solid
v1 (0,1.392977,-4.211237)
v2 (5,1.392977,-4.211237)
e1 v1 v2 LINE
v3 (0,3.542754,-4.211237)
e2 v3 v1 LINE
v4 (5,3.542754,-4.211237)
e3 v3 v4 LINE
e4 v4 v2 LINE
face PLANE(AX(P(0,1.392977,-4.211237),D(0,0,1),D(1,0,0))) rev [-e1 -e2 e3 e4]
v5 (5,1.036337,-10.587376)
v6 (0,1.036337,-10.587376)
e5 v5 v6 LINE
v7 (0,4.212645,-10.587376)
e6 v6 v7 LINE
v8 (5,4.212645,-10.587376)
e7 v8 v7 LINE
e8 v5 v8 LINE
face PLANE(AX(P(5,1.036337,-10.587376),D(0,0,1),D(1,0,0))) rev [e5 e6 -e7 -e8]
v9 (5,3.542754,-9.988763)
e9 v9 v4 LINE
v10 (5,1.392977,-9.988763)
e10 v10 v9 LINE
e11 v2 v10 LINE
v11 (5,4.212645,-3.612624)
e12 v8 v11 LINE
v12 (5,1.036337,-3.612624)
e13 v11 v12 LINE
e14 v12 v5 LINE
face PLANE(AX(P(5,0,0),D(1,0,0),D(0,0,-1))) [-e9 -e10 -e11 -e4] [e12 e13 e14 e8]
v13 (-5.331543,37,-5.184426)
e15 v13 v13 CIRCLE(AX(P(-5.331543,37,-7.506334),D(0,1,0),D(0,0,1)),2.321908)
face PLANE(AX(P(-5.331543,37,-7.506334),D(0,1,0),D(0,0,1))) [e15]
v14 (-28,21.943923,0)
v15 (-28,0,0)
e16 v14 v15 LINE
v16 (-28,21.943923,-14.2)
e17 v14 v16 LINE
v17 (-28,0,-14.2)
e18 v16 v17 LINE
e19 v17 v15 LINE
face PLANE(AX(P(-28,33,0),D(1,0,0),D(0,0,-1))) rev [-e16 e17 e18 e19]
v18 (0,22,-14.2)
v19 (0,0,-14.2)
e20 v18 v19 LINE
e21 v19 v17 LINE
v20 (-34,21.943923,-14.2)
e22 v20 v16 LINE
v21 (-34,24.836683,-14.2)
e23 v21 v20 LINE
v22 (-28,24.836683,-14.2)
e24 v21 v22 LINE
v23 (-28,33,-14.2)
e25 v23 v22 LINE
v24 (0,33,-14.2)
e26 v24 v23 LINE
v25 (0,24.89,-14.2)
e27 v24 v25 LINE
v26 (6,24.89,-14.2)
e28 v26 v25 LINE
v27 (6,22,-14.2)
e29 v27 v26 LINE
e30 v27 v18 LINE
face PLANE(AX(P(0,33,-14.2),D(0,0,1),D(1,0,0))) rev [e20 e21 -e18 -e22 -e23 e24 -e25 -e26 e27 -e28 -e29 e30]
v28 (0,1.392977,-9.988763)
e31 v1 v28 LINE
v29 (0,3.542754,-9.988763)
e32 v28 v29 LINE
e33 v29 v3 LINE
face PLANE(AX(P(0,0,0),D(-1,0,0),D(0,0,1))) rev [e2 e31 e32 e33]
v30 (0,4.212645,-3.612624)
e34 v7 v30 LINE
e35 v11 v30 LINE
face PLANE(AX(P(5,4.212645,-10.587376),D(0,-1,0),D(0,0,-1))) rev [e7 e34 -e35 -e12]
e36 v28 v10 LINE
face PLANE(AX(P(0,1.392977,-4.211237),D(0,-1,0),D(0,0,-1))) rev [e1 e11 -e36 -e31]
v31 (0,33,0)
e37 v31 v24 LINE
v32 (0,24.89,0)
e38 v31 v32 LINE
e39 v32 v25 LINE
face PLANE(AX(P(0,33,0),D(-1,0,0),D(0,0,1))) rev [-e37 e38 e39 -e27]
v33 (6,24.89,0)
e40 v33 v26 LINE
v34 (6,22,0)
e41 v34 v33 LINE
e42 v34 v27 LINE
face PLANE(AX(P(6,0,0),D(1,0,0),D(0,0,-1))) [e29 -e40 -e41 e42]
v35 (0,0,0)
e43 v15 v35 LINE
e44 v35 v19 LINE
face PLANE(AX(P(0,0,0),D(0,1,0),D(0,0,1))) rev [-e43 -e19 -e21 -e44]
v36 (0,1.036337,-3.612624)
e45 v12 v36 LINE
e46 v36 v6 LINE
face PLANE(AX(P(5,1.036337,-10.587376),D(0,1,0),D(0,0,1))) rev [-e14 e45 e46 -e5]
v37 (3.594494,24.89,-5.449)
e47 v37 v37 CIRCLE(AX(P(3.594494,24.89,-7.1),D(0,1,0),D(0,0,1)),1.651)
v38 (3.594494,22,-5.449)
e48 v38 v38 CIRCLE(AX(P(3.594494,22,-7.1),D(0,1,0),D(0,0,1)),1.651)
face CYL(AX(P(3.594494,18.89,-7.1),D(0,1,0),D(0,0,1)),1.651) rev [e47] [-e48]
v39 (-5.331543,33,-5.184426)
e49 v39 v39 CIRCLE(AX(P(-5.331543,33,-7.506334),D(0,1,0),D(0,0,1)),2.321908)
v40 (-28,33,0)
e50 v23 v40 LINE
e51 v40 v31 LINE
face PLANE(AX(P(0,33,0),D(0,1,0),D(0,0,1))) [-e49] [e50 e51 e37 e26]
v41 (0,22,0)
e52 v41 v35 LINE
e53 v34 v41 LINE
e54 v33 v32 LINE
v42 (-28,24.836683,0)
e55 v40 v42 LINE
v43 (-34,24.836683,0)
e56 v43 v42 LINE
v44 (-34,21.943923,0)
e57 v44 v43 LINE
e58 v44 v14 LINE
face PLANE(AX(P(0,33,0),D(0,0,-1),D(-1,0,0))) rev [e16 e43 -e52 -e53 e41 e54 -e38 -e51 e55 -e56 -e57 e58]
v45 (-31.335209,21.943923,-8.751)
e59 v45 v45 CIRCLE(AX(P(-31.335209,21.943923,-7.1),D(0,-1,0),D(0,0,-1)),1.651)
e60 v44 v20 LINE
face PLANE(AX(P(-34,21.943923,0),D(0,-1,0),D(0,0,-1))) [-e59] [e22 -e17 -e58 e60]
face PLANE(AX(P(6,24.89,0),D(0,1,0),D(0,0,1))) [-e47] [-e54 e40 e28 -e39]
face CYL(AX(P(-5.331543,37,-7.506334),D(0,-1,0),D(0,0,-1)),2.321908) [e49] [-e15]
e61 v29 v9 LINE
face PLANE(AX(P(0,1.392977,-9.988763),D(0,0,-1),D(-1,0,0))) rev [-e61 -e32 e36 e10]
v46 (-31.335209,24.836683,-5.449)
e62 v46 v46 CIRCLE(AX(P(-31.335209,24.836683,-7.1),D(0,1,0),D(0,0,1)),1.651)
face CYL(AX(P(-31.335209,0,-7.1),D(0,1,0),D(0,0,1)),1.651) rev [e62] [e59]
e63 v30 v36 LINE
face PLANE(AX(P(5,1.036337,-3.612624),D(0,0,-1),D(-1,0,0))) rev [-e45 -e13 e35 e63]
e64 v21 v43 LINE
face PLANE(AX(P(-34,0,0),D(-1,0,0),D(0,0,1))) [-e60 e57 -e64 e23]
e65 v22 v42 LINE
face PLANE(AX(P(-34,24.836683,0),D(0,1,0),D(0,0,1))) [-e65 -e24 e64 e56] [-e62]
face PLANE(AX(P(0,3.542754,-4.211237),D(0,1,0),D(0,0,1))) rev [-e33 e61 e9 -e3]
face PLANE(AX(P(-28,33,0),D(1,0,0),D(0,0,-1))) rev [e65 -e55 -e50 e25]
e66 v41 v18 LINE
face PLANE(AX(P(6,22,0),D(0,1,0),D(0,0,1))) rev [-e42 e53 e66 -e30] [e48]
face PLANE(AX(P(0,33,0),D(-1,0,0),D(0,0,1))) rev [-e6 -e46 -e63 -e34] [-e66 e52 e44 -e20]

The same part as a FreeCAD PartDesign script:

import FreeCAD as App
import Part
import Sketcher
from FreeCAD import Vector
Q = App.Units.Quantity

doc = App.newDocument("Part")
params = doc.addObject("Spreadsheet::Sheet", "Params")
for row, (alias, value) in enumerate([
    ("sketch1_width", "28 mm"),
    ("sketch1_height", "14.2 mm"),
    ("pad1_length", "33 mm"),
    ("pad2_length", "4 mm"),
    ("pad3_length", "5 mm"),
    ("pocket1_length", "5 mm"),
    ("sketch5_height", "14.2 mm"),
    ("pad4_length", "6 mm"),
    ("sketch6_height", "14.2 mm"),
    ("sketch6_width", "2.89 mm"),
    ("pad5_length", "6 mm"),
    ("pocket2_length", "6 mm"),
], start=1):
    params.set(f"A{row}", alias)
    params.set(f"B{row}", "=" + value)
    params.setAlias(f"B{row}", alias)

body = doc.addObject("PartDesign::Body", "Body")

# Sketch on XZ plane
sketch1 = doc.addObject("Sketcher::SketchObject", "Sketch")
body.addObject(sketch1)
sketch1.AttachmentSupport = (doc.XZ_Plane, [""])
sketch1.MapMode = "FlatFace"
sketch1.addGeometry(Part.LineSegment(Vector(-28, -14.2, 0), Vector(-28, 0, 0)), False)
sketch1.addGeometry(Part.LineSegment(Vector(-28, 0, 0), Vector(0, 0, 0)), False)
sketch1.addGeometry(Part.LineSegment(Vector(0, 0, 0), Vector(0, -14.2, 0)), False)
sketch1.addGeometry(Part.LineSegment(Vector(0, -14.2, 0), Vector(-28, -14.2, 0)), False)
sketch1.addConstraint(Sketcher.Constraint("Coincident", 0, 2, 1, 1))
sketch1.addConstraint(Sketcher.Constraint("Coincident", 1, 2, 2, 1))
sketch1.addConstraint(Sketcher.Constraint("Coincident", 2, 2, 3, 1))
sketch1.addConstraint(Sketcher.Constraint("Coincident", 3, 2, 0, 1))
sketch1.addConstraint(Sketcher.Constraint("Vertical", 0))
sketch1.addConstraint(Sketcher.Constraint("Horizontal", 1))
sketch1.addConstraint(Sketcher.Constraint("Vertical", 2))
sketch1.addConstraint(Sketcher.Constraint("Horizontal", 3))
sketch1.addConstraint(Sketcher.Constraint("Coincident", 1, 2, -1, 1))
sketch1.addConstraint(Sketcher.Constraint("DistanceX", 1, 1, 1, 2, Q("28 mm")))
sketch1.addConstraint(Sketcher.Constraint("DistanceY", 0, 1, 0, 2, Q("14.2 mm")))
sketch1.setExpression("Constraints[9]", "Params.sketch1_width")
sketch1.setExpression("Constraints[10]", "Params.sketch1_height")
pad1 = doc.addObject("PartDesign::Pad", "Pad")
body.addObject(pad1)
pad1.Profile = sketch1
pad1.setExpression("Length", "Params.pad1_length")
pad1.Reversed = True

# Sketch on XZ plane
sketch2 = doc.addObject("Sketcher::SketchObject", "Sketch001")
body.addObject(sketch2)
sketch2.AttachmentSupport = (doc.XZ_Plane, [""])
sketch2.MapMode = "FlatFace"
sketch2.AttachmentOffset = App.Placement(Vector(0, 0, -33), App.Rotation())
sketch2.addGeometry(Part.Circle(Vector(-5.331543, -7.506334, 0), Vector(0, 0, 1), 2.321908), False)
sketch2.addConstraint(Sketcher.Constraint("Diameter", 0, Q("4.643816 mm")))
sketch2.addConstraint(Sketcher.Constraint("DistanceX", 0, 3, -1, 1, Q("5.331543 mm")))
sketch2.addConstraint(Sketcher.Constraint("DistanceY", 0, 3, -1, 1, Q("7.506334 mm")))
pad2 = doc.addObject("PartDesign::Pad", "Pad001")
body.addObject(pad2)
pad2.Profile = sketch2
pad2.setExpression("Length", "Params.pad2_length")
pad2.Reversed = True

# Sketch on YZ plane
sketch3 = doc.addObject("Sketcher::SketchObject", "Sketch002")
body.addObject(sketch3)
sketch3.AttachmentSupport = (doc.YZ_Plane, [""])
sketch3.MapMode = "FlatFace"
sketch3.addGeometry(Part.LineSegment(Vector(4.212645, -3.612624, 0), Vector(1.036337, -3.612624, 0)), False)
sketch3.addGeometry(Part.LineSegment(Vector(1.036337, -3.612624, 0), Vector(1.036337, -10.587376, 0)), False)
sketch3.addGeometry(Part.LineSegment(Vector(1.036337, -10.587376, 0), Vector(4.212645, -10.587376, 0)), False)
sketch3.addGeometry(Part.LineSegment(Vector(4.212645, -10.587376, 0), Vector(4.212645, -3.612624, 0)), False)
sketch3.addConstraint(Sketcher.Constraint("Coincident", 0, 2, 1, 1))
sketch3.addConstraint(Sketcher.Constraint("Coincident", 1, 2, 2, 1))
sketch3.addConstraint(Sketcher.Constraint("Coincident", 2, 2, 3, 1))
sketch3.addConstraint(Sketcher.Constraint("Coincident", 3, 2, 0, 1))
sketch3.addConstraint(Sketcher.Constraint("Horizontal", 0))
sketch3.addConstraint(Sketcher.Constraint("Vertical", 1))
sketch3.addConstraint(Sketcher.Constraint("Horizontal", 2))
sketch3.addConstraint(Sketcher.Constraint("Vertical", 3))
sketch3.addConstraint(Sketcher.Constraint("DistanceX", 0, 2, 0, 1, Q("3.176308 mm")))
sketch3.addConstraint(Sketcher.Constraint("DistanceY", 1, 2, 1, 1, Q("6.974753 mm")))
sketch3.addConstraint(Sketcher.Constraint("DistanceX", -1, 1, 0, 2, Q("1.036337 mm")))
sketch3.addConstraint(Sketcher.Constraint("DistanceY", 0, 2, -1, 1, Q("3.612624 mm")))
pad3 = doc.addObject("PartDesign::Pad", "Pad002")
body.addObject(pad3)
pad3.Profile = sketch3
pad3.setExpression("Length", "Params.pad3_length")

# Sketch on YZ plane
sketch4 = doc.addObject("Sketcher::SketchObject", "Sketch003")
body.addObject(sketch4)
sketch4.AttachmentSupport = (doc.YZ_Plane, [""])
sketch4.MapMode = "FlatFace"
sketch4.AttachmentOffset = App.Placement(Vector(0, 0, 5), App.Rotation())
sketch4.addGeometry(Part.LineSegment(Vector(3.542754, -4.211237, 0), Vector(1.392977, -4.211237, 0)), False)
sketch4.addGeometry(Part.LineSegment(Vector(1.392977, -4.211237, 0), Vector(1.392977, -9.988763, 0)), False)
sketch4.addGeometry(Part.LineSegment(Vector(1.392977, -9.988763, 0), Vector(3.542754, -9.988763, 0)), False)
sketch4.addGeometry(Part.LineSegment(Vector(3.542754, -9.988763, 0), Vector(3.542754, -4.211237, 0)), False)
sketch4.addConstraint(Sketcher.Constraint("Coincident", 0, 2, 1, 1))
sketch4.addConstraint(Sketcher.Constraint("Coincident", 1, 2, 2, 1))
sketch4.addConstraint(Sketcher.Constraint("Coincident", 2, 2, 3, 1))
sketch4.addConstraint(Sketcher.Constraint("Coincident", 3, 2, 0, 1))
sketch4.addConstraint(Sketcher.Constraint("Horizontal", 0))
sketch4.addConstraint(Sketcher.Constraint("Vertical", 1))
sketch4.addConstraint(Sketcher.Constraint("Horizontal", 2))
sketch4.addConstraint(Sketcher.Constraint("Vertical", 3))
sketch4.addConstraint(Sketcher.Constraint("DistanceX", 0, 2, 0, 1, Q("2.149777 mm")))
sketch4.addConstraint(Sketcher.Constraint("DistanceY", 1, 2, 1, 1, Q("5.777526 mm")))
sketch4.addConstraint(Sketcher.Constraint("DistanceX", -1, 1, 0, 2, Q("1.392977 mm")))
sketch4.addConstraint(Sketcher.Constraint("DistanceY", 0, 2, -1, 1, Q("4.211237 mm")))
pocket1 = doc.addObject("PartDesign::Pocket", "Pocket")
body.addObject(pocket1)
pocket1.Profile = sketch4
pocket1.setExpression("Length", "Params.pocket1_length")

# Sketch on YZ plane
sketch5 = doc.addObject("Sketcher::SketchObject", "Sketch004")
body.addObject(sketch5)
sketch5.AttachmentSupport = (doc.YZ_Plane, [""])
sketch5.MapMode = "FlatFace"
sketch5.AttachmentOffset = App.Placement(Vector(0, 0, -28), App.Rotation())
sketch5.addGeometry(Part.LineSegment(Vector(24.836683, -14.2, 0), Vector(21.943923, -14.2, 0)), False)
sketch5.addGeometry(Part.LineSegment(Vector(21.943923, -14.2, 0), Vector(21.943923, 0, 0)), False)
sketch5.addGeometry(Part.LineSegment(Vector(21.943923, 0, 0), Vector(24.836683, 0, 0)), False)
sketch5.addGeometry(Part.LineSegment(Vector(24.836683, 0, 0), Vector(24.836683, -14.2, 0)), False)
sketch5.addConstraint(Sketcher.Constraint("Coincident", 0, 2, 1, 1))
sketch5.addConstraint(Sketcher.Constraint("Coincident", 1, 2, 2, 1))
sketch5.addConstraint(Sketcher.Constraint("Coincident", 2, 2, 3, 1))
sketch5.addConstraint(Sketcher.Constraint("Coincident", 3, 2, 0, 1))
sketch5.addConstraint(Sketcher.Constraint("Horizontal", 0))
sketch5.addConstraint(Sketcher.Constraint("Vertical", 1))
sketch5.addConstraint(Sketcher.Constraint("Horizontal", 2))
sketch5.addConstraint(Sketcher.Constraint("Vertical", 3))
sketch5.addConstraint(Sketcher.Constraint("PointOnObject", 1, 2, -1))
sketch5.addConstraint(Sketcher.Constraint("DistanceY", 1, 1, 1, 2, Q("14.2 mm")))
sketch5.addConstraint(Sketcher.Constraint("DistanceX", 0, 2, 0, 1, Q("2.89276 mm")))
sketch5.addConstraint(Sketcher.Constraint("DistanceX", -1, 1, 0, 2, Q("21.943923 mm")))
sketch5.setExpression("Constraints[9]", "Params.sketch5_height")
pad4 = doc.addObject("PartDesign::Pad", "Pad003")
body.addObject(pad4)
pad4.Profile = sketch5
pad4.setExpression("Length", "Params.pad4_length")
pad4.Reversed = True

# Sketch on YZ plane
sketch6 = doc.addObject("Sketcher::SketchObject", "Sketch005")
body.addObject(sketch6)
sketch6.AttachmentSupport = (doc.YZ_Plane, [""])
sketch6.MapMode = "FlatFace"
sketch6.addGeometry(Part.LineSegment(Vector(24.89, 0, 0), Vector(22, 0, 0)), False)
sketch6.addGeometry(Part.LineSegment(Vector(22, 0, 0), Vector(22, -14.2, 0)), False)
sketch6.addGeometry(Part.LineSegment(Vector(22, -14.2, 0), Vector(24.89, -14.2, 0)), False)
sketch6.addGeometry(Part.LineSegment(Vector(24.89, -14.2, 0), Vector(24.89, 0, 0)), False)
sketch6.addConstraint(Sketcher.Constraint("Coincident", 0, 2, 1, 1))
sketch6.addConstraint(Sketcher.Constraint("Coincident", 1, 2, 2, 1))
sketch6.addConstraint(Sketcher.Constraint("Coincident", 2, 2, 3, 1))
sketch6.addConstraint(Sketcher.Constraint("Coincident", 3, 2, 0, 1))
sketch6.addConstraint(Sketcher.Constraint("Horizontal", 0))
sketch6.addConstraint(Sketcher.Constraint("Vertical", 1))
sketch6.addConstraint(Sketcher.Constraint("Horizontal", 2))
sketch6.addConstraint(Sketcher.Constraint("Vertical", 3))
sketch6.addConstraint(Sketcher.Constraint("PointOnObject", 0, 2, -1))
sketch6.addConstraint(Sketcher.Constraint("DistanceY", 1, 2, 1, 1, Q("14.2 mm")))
sketch6.addConstraint(Sketcher.Constraint("DistanceX", -1, 1, 0, 2, Q("22 mm")))
sketch6.addConstraint(Sketcher.Constraint("DistanceX", 0, 2, 0, 1, Q("2.89 mm")))
sketch6.setExpression("Constraints[9]", "Params.sketch6_height")
sketch6.setExpression("Constraints[11]", "Params.sketch6_width")
pad5 = doc.addObject("PartDesign::Pad", "Pad004")
body.addObject(pad5)
pad5.Profile = sketch6
pad5.setExpression("Length", "Params.pad5_length")

# Sketch on XZ plane
sketch7 = doc.addObject("Sketcher::SketchObject", "Sketch006")
body.addObject(sketch7)
sketch7.AttachmentSupport = (doc.XZ_Plane, [""])
sketch7.MapMode = "FlatFace"
sketch7.AttachmentOffset = App.Placement(Vector(0, 0, -24.89), App.Rotation())
sketch7.addGeometry(Part.Circle(Vector(3.594494, -7.1, 0), Vector(0, 0, 1), 1.651), False)
sketch7.addConstraint(Sketcher.Constraint("Diameter", 0, Q("3.302 mm")))
sketch7.addConstraint(Sketcher.Constraint("DistanceY", 0, 3, -1, 1, Q("7.1 mm")))
sketch7.addConstraint(Sketcher.Constraint("DistanceX", -1, 1, 0, 3, Q("3.594494 mm")))
pocket2 = doc.addObject("PartDesign::Pocket", "Pocket001")
body.addObject(pocket2)
pocket2.Profile = sketch7
pocket2.setExpression("Length", "Params.pocket2_length")
pocket2.Reversed = True

# Sketch on XZ plane
sketch8 = doc.addObject("Sketcher::SketchObject", "Sketch007")
body.addObject(sketch8)
sketch8.AttachmentSupport = (doc.XZ_Plane, [""])
sketch8.MapMode = "FlatFace"
sketch8.AttachmentOffset = App.Placement(Vector(0, 0, -24.836683), App.Rotation())
sketch8.addGeometry(Part.Circle(Vector(-31.335209, -7.1, 0), Vector(0, 0, 1), 1.651), False)
sketch8.addConstraint(Sketcher.Constraint("Diameter", 0, Q("3.302 mm")))
sketch8.addConstraint(Sketcher.Constraint("DistanceY", 0, 3, -1, 1, Q("7.1 mm")))
sketch8.addConstraint(Sketcher.Constraint("DistanceX", 0, 3, -1, 1, Q("31.335209 mm")))
pocket3 = doc.addObject("PartDesign::Pocket", "Pocket002")
body.addObject(pocket3)
pocket3.Profile = sketch8
pocket3.Type = "ThroughAll"
pocket3.Reversed = True

doc.recompute()
